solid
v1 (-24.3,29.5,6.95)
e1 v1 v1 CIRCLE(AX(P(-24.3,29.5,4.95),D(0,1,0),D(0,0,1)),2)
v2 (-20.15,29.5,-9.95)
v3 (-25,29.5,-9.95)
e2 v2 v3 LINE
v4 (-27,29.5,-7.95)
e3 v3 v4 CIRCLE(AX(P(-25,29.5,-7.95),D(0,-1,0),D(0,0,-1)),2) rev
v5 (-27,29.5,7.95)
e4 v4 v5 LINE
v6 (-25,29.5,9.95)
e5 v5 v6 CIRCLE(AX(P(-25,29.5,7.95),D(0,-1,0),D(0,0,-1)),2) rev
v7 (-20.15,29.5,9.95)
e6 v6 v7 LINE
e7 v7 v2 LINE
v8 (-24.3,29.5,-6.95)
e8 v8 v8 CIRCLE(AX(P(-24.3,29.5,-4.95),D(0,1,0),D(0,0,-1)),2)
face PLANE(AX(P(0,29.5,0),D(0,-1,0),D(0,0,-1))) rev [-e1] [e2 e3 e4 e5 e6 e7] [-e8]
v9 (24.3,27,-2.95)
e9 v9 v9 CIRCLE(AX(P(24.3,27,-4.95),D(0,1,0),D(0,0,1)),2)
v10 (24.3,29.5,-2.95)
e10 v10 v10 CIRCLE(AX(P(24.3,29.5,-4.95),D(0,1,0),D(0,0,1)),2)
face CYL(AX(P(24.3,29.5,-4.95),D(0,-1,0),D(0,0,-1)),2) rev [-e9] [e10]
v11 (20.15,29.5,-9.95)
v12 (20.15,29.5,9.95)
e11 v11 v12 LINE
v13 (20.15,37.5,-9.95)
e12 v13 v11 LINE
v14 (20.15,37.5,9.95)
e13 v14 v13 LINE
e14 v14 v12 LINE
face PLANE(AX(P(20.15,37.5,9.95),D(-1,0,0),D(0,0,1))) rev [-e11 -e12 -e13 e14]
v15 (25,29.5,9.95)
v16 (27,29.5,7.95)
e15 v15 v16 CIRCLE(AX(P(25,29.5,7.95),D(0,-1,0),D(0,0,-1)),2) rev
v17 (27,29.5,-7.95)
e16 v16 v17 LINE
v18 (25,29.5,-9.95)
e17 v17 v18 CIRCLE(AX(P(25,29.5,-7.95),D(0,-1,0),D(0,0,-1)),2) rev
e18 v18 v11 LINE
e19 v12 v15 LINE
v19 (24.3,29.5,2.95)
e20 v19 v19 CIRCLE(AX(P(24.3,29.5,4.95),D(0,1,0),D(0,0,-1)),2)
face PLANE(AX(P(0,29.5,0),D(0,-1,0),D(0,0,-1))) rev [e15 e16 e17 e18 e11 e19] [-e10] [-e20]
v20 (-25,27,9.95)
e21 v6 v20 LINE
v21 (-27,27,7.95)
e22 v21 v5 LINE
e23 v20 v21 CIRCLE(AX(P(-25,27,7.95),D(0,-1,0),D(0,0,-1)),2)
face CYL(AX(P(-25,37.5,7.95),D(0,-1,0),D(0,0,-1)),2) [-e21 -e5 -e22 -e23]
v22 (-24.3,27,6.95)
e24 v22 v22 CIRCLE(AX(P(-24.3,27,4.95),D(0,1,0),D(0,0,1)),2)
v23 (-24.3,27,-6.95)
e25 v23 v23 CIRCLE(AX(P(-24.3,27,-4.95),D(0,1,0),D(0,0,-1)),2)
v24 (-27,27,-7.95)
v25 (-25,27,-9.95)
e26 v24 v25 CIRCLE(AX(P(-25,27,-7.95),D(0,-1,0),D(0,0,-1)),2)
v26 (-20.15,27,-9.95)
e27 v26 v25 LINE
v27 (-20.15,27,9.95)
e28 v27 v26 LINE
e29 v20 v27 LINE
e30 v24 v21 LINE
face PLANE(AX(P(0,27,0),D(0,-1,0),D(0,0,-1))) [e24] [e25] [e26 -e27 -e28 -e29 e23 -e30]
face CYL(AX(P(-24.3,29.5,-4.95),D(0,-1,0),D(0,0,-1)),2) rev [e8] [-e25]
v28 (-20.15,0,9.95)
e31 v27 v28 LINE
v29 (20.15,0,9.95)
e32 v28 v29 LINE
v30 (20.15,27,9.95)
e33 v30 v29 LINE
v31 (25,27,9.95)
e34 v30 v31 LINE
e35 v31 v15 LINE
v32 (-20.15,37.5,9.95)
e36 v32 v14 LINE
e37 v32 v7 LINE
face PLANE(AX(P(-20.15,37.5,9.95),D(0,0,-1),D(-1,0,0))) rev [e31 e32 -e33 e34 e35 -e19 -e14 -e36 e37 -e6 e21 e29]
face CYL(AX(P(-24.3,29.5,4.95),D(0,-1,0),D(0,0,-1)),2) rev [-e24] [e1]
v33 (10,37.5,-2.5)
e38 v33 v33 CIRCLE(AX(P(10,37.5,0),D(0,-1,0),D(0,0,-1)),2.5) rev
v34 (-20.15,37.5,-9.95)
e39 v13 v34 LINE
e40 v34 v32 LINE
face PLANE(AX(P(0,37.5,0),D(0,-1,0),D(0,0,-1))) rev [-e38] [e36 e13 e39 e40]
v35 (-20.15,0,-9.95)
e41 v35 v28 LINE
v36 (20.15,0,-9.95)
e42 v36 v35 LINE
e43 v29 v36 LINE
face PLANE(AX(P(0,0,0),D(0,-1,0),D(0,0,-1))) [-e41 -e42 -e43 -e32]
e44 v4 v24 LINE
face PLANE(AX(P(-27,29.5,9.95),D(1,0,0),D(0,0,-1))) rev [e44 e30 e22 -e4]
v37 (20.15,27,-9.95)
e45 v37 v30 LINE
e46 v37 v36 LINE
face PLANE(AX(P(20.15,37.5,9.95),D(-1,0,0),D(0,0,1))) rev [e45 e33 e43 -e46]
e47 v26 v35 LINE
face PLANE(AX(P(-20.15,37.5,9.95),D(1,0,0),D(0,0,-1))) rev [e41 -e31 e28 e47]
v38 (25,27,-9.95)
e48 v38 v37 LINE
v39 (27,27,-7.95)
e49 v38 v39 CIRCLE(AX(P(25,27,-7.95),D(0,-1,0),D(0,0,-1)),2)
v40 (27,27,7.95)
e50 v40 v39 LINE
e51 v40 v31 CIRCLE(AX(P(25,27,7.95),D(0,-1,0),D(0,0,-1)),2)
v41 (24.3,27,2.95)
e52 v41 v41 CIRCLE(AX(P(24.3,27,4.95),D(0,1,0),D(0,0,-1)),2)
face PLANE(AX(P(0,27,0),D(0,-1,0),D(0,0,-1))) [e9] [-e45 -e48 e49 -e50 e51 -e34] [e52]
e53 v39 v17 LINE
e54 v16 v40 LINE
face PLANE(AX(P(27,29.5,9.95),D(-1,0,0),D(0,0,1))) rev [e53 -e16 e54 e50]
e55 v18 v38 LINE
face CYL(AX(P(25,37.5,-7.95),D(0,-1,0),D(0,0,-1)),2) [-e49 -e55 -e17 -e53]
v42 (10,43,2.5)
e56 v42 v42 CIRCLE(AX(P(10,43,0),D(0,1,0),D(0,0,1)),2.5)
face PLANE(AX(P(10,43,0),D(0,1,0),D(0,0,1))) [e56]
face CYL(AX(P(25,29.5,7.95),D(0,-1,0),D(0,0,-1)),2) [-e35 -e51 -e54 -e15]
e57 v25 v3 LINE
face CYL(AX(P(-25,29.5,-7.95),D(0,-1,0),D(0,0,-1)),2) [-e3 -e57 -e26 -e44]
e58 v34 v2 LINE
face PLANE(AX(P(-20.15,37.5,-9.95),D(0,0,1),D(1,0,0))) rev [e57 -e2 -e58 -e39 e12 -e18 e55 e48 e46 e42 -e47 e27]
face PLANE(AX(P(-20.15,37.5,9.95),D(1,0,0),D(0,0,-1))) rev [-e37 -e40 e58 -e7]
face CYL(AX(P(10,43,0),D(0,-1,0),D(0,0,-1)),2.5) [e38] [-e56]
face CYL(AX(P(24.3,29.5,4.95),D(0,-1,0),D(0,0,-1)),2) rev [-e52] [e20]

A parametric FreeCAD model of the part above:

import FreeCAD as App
import Part
import Sketcher


def edges_at(feature, points):
    """Names of the edges that pass closest to the given points."""
    edges = feature.Shape.Edges
    near = lambda p: min(range(len(edges)), key=lambda i: edges[i].distToShape(Part.Vertex(*p))[0])
    return sorted({f"Edge{near(p) + 1}" for p in points})

doc = App.newDocument("Part")
body = doc.addObject("PartDesign::Body", "Body")

# Sketch on XZ plane
sketch1 = doc.addObject("Sketcher::SketchObject", "Sketch")
body.addObject(sketch1)
sketch1.AttachmentSupport = (doc.XZ_Plane, [""])
sketch1.MapMode = "FlatFace"
sketch1.addGeometry([
    Part.LineSegment(App.Vector(-20, -10, 0), App.Vector(-20, 10, 0)),
    Part.LineSegment(App.Vector(-20, 10, 0), App.Vector(20, 10, 0)),
    Part.LineSegment(App.Vector(20, 10, 0), App.Vector(20, -10, 0)),
    Part.LineSegment(App.Vector(20, -10, 0), App.Vector(-20, -10, 0)),
], False)
sketch1.addConstraint([
    Sketcher.Constraint("Coincident", 0, 2, 1, 1),
    Sketcher.Constraint("Coincident", 1, 2, 2, 1),
    Sketcher.Constraint("Coincident", 2, 2, 3, 1),
    Sketcher.Constraint("Coincident", 3, 2, 0, 1),
    Sketcher.Constraint("Vertical", 0),
    Sketcher.Constraint("Horizontal", 1),
    Sketcher.Constraint("Vertical", 2),
    Sketcher.Constraint("Horizontal", 3),
    Sketcher.Constraint("Symmetric", 0, 2, 2, 2, -1, 1),
    Sketcher.Constraint("DistanceX", 1, 1, 1, 2, 40.3),
    Sketcher.Constraint("DistanceY", 0, 1, 0, 2, 19.9),
])
pad1 = doc.addObject("PartDesign::Pad", "Pad")
body.addObject(pad1)
pad1.Profile = sketch1
pad1.Length = 37.5
pad1.Reversed = True

# Sketch on XZ plane
sketch2 = doc.addObject("Sketcher::SketchObject", "Sketch001")
body.addObject(sketch2)
sketch2.AttachmentSupport = (doc.XZ_Plane, [""])
sketch2.MapMode = "FlatFace"
sketch2.AttachmentOffset = App.Placement(App.Vector(0, 0, -27), App.Rotation())
sketch2.addGeometry([
    Part.LineSegment(App.Vector(-27, -9.9, 0), App.Vector(-27, 9.9, 0)),  # 0
    Part.LineSegment(App.Vector(-27, 9.9, 0), App.Vector(27, 9.9, 0)),  # 1
    Part.LineSegment(App.Vector(27, 9.9, 0), App.Vector(27, -9.9, 0)),  # 2
    Part.LineSegment(App.Vector(27, -9.9, 0), App.Vector(-27, -9.9, 0)),  # 3
    Part.Circle(App.Vector(-24.3, 5, 0), App.Vector(0, 0, 1), 2),  # 4
    Part.Circle(App.Vector(24.3, 5, 0), App.Vector(0, 0, 1), 2),  # 5
    Part.Circle(App.Vector(-24.3, -5, 0), App.Vector(0, 0, 1), 2),  # 6
    Part.Circle(App.Vector(24.3, -5, 0), App.Vector(0, 0, 1), 2),  # 7
], False)
sketch2.addConstraint([
    Sketcher.Constraint("Coincident", 0, 2, 1, 1),
    Sketcher.Constraint("Coincident", 1, 2, 2, 1),
    Sketcher.Constraint("Coincident", 2, 2, 3, 1),
    Sketcher.Constraint("Coincident", 3, 2, 0, 1),
    Sketcher.Constraint("Vertical", 0),
    Sketcher.Constraint("Horizontal", 1),
    Sketcher.Constraint("Vertical", 2),
    Sketcher.Constraint("Horizontal", 3),
    Sketcher.Constraint("Equal", 4, 5),
    Sketcher.Constraint("Equal", 5, 6),
    Sketcher.Constraint("Equal", 6, 7),
    Sketcher.Constraint("Symmetric", 5, 3, 6, 3, -1, 1),
    Sketcher.Constraint("Symmetric", 4, 3, 7, 3, -1, 1),
    Sketcher.Constraint("Symmetric", 0, 2, 2, 2, -1, 1),
    Sketcher.Constraint("Symmetric", 4, 3, 5, 3, -2),
    Sketcher.Constraint("Diameter", 4, 4.0),
    Sketcher.Constraint("DistanceX", 1, 1, 1, 2, 54.0),
    Sketcher.Constraint("DistanceY", 0, 1, 0, 2, 19.9),
    Sketcher.Constraint("DistanceY", 4, 3, 0, 2, 5.0),
    Sketcher.Constraint("DistanceX", 4, 3, -1, 1, 24.3),
])
pad2 = doc.addObject("PartDesign::Pad", "Pad001")
body.addObject(pad2)
pad2.Profile = sketch2
pad2.Length = 2.5
pad2.Reversed = True

# Sketch on XZ plane
sketch3 = doc.addObject("Sketcher::SketchObject", "Sketch002")
body.addObject(sketch3)
sketch3.AttachmentSupport = (doc.XZ_Plane, [""])
sketch3.MapMode = "FlatFace"
sketch3.AttachmentOffset = App.Placement(App.Vector(0, 0, -37.5), App.Rotation())
sketch3.addGeometry(Part.Circle(App.Vector(10, 0, 0), App.Vector(0, 0, 1), 2.5), False)
sketch3.addConstraint([
    Sketcher.Constraint("PointOnObject", 0, 3, -1),
    Sketcher.Constraint("Diameter", 0, 5.0),
    Sketcher.Constraint("DistanceX", -1, 1, 0, 3, 10.0),
])
pad3 = doc.addObject("PartDesign::Pad", "Pad002")
body.addObject(pad3)
pad3.Profile = sketch3
pad3.Length = 5.5
pad3.Reversed = True

# Sketch on XZ plane
sketch4 = doc.addObject("Sketcher::SketchObject", "Sketch003")
body.addObject(sketch4)
sketch4.AttachmentSupport = (doc.XZ_Plane, [""])
sketch4.MapMode = "FlatFace"
sketch4.AttachmentOffset = App.Placement(App.Vector(0, 0, -30.53), App.Rotation())
sketch4.addGeometry(Part.Circle(App.Vector(10, 0, 0), App.Vector(0, 0, 1), 2.2), False)
sketch4.addConstraint([
    Sketcher.Constraint("PointOnObject", 0, 3, -1),
    Sketcher.Constraint("Diameter", 0, 4.5),
    Sketcher.Constraint("DistanceX", -1, 1, 0, 3, 10.0),
])
pad4 = doc.addObject("PartDesign::Pad", "Pad003")
body.addObject(pad4)
pad4.Profile = sketch4
pad4.Length = 30.53
doc.recompute()

fillet = doc.addObject("PartDesign::Fillet", "Fillet")
body.addObject(fillet)
fillet.Base = (pad4, edges_at(pad4, [
    (27, 28.25, -9.95),
    (-27, 28.25, 9.95),
    (27, 28.25, 9.95),
    (-27, 28.25, -9.95),
]))
fillet.Radius = 2

doc.recompute()
